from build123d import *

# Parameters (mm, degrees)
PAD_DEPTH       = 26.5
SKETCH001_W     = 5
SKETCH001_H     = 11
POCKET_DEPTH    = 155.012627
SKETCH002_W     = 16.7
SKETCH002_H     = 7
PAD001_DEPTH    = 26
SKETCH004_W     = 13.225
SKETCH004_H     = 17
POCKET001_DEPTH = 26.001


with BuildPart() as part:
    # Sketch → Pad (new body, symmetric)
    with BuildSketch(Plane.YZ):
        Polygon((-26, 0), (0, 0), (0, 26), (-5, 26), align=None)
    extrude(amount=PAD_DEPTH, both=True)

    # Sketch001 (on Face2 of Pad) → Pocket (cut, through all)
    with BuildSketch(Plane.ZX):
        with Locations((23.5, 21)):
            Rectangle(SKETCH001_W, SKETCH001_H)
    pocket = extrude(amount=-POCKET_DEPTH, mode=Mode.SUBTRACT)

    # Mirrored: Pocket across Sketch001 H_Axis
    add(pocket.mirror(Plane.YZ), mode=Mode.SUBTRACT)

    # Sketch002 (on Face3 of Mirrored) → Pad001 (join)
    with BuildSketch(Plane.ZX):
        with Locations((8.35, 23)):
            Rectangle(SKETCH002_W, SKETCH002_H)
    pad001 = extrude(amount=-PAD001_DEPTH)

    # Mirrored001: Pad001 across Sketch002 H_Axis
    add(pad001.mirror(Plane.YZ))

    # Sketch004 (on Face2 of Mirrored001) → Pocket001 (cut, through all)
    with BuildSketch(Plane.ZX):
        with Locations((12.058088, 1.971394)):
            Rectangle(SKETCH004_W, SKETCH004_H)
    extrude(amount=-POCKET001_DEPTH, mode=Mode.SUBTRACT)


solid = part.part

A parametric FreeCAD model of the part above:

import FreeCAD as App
import Part
import Sketcher
Q = App.Units.Quantity

doc = App.newDocument("Part")
body = doc.addObject("PartDesign::Body", "Body")

# Sketch on YZ plane
sketch1 = body.newObject("Sketcher::SketchObject", "Sketch")
sketch1.AttachmentSupport = (doc.getObject("YZ_Plane"), [""])
sketch1.MapMode = "FlatFace"
sketch1.addGeometry(Part.LineSegment(App.Vector(-26, 0, 0), App.Vector(0, 0, 0)), False)
sketch1.addGeometry(Part.LineSegment(App.Vector(0, 0, 0), App.Vector(0, 26, 0)), False)
sketch1.addGeometry(Part.LineSegment(App.Vector(0, 26, 0), App.Vector(-5, 26, 0)), False)
sketch1.addGeometry(Part.LineSegment(App.Vector(-5, 26, 0), App.Vector(-26, 0, 0)), False)
sketch1.addConstraint(Sketcher.Constraint("Coincident", 0, 2, 1, 1))
sketch1.addConstraint(Sketcher.Constraint("Coincident", 1, 2, 2, 1))
sketch1.addConstraint(Sketcher.Constraint("Coincident", 2, 2, 3, 1))
sketch1.addConstraint(Sketcher.Constraint("Coincident", 3, 2, 0, 1))
sketch1.addConstraint(Sketcher.Constraint("Horizontal", 0))
sketch1.addConstraint(Sketcher.Constraint("Vertical", 1))
sketch1.addConstraint(Sketcher.Constraint("Horizontal", 2))
sketch1.addConstraint(Sketcher.Constraint("Coincident", 0, 2, -1, 1))
sketch1.addConstraint(Sketcher.Constraint("Equal", 0, 1))
sketch1.addConstraint(Sketcher.Constraint("DistanceX", 0, 1, 0, 2, Q("26 mm")))
sketch1.addConstraint(Sketcher.Constraint("DistanceX", 2, 2, 2, 1, Q("5 mm")))
pad1 = body.newObject("PartDesign::Pad", "Pad")
pad1.Profile = sketch1
pad1.Length = 53
pad1.Midplane = True

# Sketch on XZ plane
sketch2 = body.newObject("Sketcher::SketchObject", "Sketch001")
sketch2.AttachmentSupport = (doc.getObject("XZ_Plane"), [""])
sketch2.MapMode = "FlatFace"
sketch2.addGeometry(Part.LineSegment(App.Vector(26, 21, 0), App.Vector(16, 21, 0)), False)
sketch2.addGeometry(Part.LineSegment(App.Vector(16, 21, 0), App.Vector(16, 26, 0)), False)
sketch2.addGeometry(Part.LineSegment(App.Vector(16, 26, 0), App.Vector(26, 26, 0)), False)
sketch2.addGeometry(Part.LineSegment(App.Vector(26, 26, 0), App.Vector(26, 21, 0)), False)
sketch2.addConstraint(Sketcher.Constraint("Coincident", 0, 2, 1, 1))
sketch2.addConstraint(Sketcher.Constraint("Coincident", 1, 2, 2, 1))
sketch2.addConstraint(Sketcher.Constraint("Coincident", 2, 2, 3, 1))
sketch2.addConstraint(Sketcher.Constraint("Coincident", 3, 2, 0, 1))
sketch2.addConstraint(Sketcher.Constraint("Horizontal", 0))
sketch2.addConstraint(Sketcher.Constraint("Vertical", 1))
sketch2.addConstraint(Sketcher.Constraint("Horizontal", 2))
sketch2.addConstraint(Sketcher.Constraint("Vertical", 3))
sketch2.addConstraint(Sketcher.Constraint("DistanceX", 0, 2, 0, 1, Q("11 mm")))
sketch2.addConstraint(Sketcher.Constraint("DistanceY", 1, 1, 1, 2, Q("5 mm")))
sketch2.addConstraint(Sketcher.Constraint("DistanceY", -1, 1, 0, 2, Q("21 mm")))
sketch2.addConstraint(Sketcher.Constraint("DistanceX", -1, 1, 0, 2, Q("15.5 mm")))
pocket1 = body.newObject("PartDesign::Pocket", "Pocket")
pocket1.Profile = sketch2
pocket1.Type = "ThroughAll"
pocket1.Reversed = True
doc.recompute()

mirrored = body.newObject("PartDesign::Mirrored", "Mirrored")
mirrored.Originals = [pocket1]
mirrored.MirrorPlane = (doc.getObject("YZ_Plane"), [""])
body.Tip = mirrored

# Sketch on XZ plane
sketch3 = body.newObject("Sketcher::SketchObject", "Sketch002")
sketch3.AttachmentSupport = (doc.getObject("XZ_Plane"), [""])
sketch3.MapMode = "FlatFace"
sketch3.addGeometry(Part.LineSegment(App.Vector(26, 0, 0), App.Vector(20, 0, 0)), False)
sketch3.addGeometry(Part.LineSegment(App.Vector(20, 0, 0), App.Vector(20, 17, 0)), False)
sketch3.addGeometry(Part.LineSegment(App.Vector(20, 17, 0), App.Vector(26, 17, 0)), False)
sketch3.addGeometry(Part.LineSegment(App.Vector(26, 17, 0), App.Vector(26, 0, 0)), False)
sketch3.addConstraint(Sketcher.Constraint("Coincident", 0, 2, 1, 1))
sketch3.addConstraint(Sketcher.Constraint("Coincident", 1, 2, 2, 1))
sketch3.addConstraint(Sketcher.Constraint("Coincident", 2, 2, 3, 1))
sketch3.addConstraint(Sketcher.Constraint("Coincident", 3, 2, 0, 1))
sketch3.addConstraint(Sketcher.Constraint("Horizontal", 0))
sketch3.addConstraint(Sketcher.Constraint("Vertical", 1))
sketch3.addConstraint(Sketcher.Constraint("Horizontal", 2))
sketch3.addConstraint(Sketcher.Constraint("Vertical", 3))
sketch3.addConstraint(Sketcher.Constraint("PointOnObject", 0, 2, -1))
sketch3.addConstraint(Sketcher.Constraint("DistanceX", 0, 2, 0, 1, Q("7 mm")))
sketch3.addConstraint(Sketcher.Constraint("DistanceY", 1, 1, 1, 2, Q("16.7 mm")))
sketch3.addConstraint(Sketcher.Constraint("DistanceX", -1, 1, 0, 2, Q("19.5 mm")))
pad2 = body.newObject("PartDesign::Pad", "Pad001")
pad2.Profile = sketch3
pad2.Length = 26
doc.recompute()

mirrored2 = body.newObject("PartDesign::Mirrored", "Mirrored001")
mirrored2.Originals = [pad2]
mirrored2.MirrorPlane = (doc.getObject("YZ_Plane"), [""])
body.Tip = mirrored2

# Sketch on XZ plane
sketch4 = body.newObject("Sketcher::SketchObject", "Sketch003")
sketch4.AttachmentSupport = (doc.getObject("XZ_Plane"), [""])
sketch4.MapMode = "FlatFace"
sketch4.addGeometry(Part.LineSegment(App.Vector(10, 5, 0), App.Vector(-7, 5, 0)), False)
sketch4.addGeometry(Part.LineSegment(App.Vector(-7, 5, 0), App.Vector(-7, 19, 0)), False)
sketch4.addGeometry(Part.LineSegment(App.Vector(-7, 19, 0), App.Vector(10, 19, 0)), False)
sketch4.addGeometry(Part.LineSegment(App.Vector(10, 19, 0), App.Vector(10, 5, 0)), False)
sketch4.addConstraint(Sketcher.Constraint("Coincident", 0, 2, 1, 1))
sketch4.addConstraint(Sketcher.Constraint("Coincident", 1, 2, 2, 1))
sketch4.addConstraint(Sketcher.Constraint("Coincident", 2, 2, 3, 1))
sketch4.addConstraint(Sketcher.Constraint("Coincident", 3, 2, 0, 1))
sketch4.addConstraint(Sketcher.Constraint("Horizontal", 0))
sketch4.addConstraint(Sketcher.Constraint("Vertical", 1))
sketch4.addConstraint(Sketcher.Constraint("Horizontal", 2))
sketch4.addConstraint(Sketcher.Constraint("Vertical", 3))
sketch4.addConstraint(Sketcher.Constraint("DistanceX", 0, 2, 0, 1, Q("17 mm")))
sketch4.addConstraint(Sketcher.Constraint("DistanceY", 1, 1, 1, 2, Q("13.225 mm")))
sketch4.addConstraint(Sketcher.Constraint("DistanceX", 0, 2, -1, 1, Q("6.528606 mm")))
sketch4.addConstraint(Sketcher.Constraint("DistanceY", -1, 1, 0, 2, Q("5.445588 mm")))
pocket2 = body.newObject("PartDesign::Pocket", "Pocket001")
pocket2.Profile = sketch4
pocket2.Type = "ThroughAll"
pocket2.Reversed = True

doc.recompute()
